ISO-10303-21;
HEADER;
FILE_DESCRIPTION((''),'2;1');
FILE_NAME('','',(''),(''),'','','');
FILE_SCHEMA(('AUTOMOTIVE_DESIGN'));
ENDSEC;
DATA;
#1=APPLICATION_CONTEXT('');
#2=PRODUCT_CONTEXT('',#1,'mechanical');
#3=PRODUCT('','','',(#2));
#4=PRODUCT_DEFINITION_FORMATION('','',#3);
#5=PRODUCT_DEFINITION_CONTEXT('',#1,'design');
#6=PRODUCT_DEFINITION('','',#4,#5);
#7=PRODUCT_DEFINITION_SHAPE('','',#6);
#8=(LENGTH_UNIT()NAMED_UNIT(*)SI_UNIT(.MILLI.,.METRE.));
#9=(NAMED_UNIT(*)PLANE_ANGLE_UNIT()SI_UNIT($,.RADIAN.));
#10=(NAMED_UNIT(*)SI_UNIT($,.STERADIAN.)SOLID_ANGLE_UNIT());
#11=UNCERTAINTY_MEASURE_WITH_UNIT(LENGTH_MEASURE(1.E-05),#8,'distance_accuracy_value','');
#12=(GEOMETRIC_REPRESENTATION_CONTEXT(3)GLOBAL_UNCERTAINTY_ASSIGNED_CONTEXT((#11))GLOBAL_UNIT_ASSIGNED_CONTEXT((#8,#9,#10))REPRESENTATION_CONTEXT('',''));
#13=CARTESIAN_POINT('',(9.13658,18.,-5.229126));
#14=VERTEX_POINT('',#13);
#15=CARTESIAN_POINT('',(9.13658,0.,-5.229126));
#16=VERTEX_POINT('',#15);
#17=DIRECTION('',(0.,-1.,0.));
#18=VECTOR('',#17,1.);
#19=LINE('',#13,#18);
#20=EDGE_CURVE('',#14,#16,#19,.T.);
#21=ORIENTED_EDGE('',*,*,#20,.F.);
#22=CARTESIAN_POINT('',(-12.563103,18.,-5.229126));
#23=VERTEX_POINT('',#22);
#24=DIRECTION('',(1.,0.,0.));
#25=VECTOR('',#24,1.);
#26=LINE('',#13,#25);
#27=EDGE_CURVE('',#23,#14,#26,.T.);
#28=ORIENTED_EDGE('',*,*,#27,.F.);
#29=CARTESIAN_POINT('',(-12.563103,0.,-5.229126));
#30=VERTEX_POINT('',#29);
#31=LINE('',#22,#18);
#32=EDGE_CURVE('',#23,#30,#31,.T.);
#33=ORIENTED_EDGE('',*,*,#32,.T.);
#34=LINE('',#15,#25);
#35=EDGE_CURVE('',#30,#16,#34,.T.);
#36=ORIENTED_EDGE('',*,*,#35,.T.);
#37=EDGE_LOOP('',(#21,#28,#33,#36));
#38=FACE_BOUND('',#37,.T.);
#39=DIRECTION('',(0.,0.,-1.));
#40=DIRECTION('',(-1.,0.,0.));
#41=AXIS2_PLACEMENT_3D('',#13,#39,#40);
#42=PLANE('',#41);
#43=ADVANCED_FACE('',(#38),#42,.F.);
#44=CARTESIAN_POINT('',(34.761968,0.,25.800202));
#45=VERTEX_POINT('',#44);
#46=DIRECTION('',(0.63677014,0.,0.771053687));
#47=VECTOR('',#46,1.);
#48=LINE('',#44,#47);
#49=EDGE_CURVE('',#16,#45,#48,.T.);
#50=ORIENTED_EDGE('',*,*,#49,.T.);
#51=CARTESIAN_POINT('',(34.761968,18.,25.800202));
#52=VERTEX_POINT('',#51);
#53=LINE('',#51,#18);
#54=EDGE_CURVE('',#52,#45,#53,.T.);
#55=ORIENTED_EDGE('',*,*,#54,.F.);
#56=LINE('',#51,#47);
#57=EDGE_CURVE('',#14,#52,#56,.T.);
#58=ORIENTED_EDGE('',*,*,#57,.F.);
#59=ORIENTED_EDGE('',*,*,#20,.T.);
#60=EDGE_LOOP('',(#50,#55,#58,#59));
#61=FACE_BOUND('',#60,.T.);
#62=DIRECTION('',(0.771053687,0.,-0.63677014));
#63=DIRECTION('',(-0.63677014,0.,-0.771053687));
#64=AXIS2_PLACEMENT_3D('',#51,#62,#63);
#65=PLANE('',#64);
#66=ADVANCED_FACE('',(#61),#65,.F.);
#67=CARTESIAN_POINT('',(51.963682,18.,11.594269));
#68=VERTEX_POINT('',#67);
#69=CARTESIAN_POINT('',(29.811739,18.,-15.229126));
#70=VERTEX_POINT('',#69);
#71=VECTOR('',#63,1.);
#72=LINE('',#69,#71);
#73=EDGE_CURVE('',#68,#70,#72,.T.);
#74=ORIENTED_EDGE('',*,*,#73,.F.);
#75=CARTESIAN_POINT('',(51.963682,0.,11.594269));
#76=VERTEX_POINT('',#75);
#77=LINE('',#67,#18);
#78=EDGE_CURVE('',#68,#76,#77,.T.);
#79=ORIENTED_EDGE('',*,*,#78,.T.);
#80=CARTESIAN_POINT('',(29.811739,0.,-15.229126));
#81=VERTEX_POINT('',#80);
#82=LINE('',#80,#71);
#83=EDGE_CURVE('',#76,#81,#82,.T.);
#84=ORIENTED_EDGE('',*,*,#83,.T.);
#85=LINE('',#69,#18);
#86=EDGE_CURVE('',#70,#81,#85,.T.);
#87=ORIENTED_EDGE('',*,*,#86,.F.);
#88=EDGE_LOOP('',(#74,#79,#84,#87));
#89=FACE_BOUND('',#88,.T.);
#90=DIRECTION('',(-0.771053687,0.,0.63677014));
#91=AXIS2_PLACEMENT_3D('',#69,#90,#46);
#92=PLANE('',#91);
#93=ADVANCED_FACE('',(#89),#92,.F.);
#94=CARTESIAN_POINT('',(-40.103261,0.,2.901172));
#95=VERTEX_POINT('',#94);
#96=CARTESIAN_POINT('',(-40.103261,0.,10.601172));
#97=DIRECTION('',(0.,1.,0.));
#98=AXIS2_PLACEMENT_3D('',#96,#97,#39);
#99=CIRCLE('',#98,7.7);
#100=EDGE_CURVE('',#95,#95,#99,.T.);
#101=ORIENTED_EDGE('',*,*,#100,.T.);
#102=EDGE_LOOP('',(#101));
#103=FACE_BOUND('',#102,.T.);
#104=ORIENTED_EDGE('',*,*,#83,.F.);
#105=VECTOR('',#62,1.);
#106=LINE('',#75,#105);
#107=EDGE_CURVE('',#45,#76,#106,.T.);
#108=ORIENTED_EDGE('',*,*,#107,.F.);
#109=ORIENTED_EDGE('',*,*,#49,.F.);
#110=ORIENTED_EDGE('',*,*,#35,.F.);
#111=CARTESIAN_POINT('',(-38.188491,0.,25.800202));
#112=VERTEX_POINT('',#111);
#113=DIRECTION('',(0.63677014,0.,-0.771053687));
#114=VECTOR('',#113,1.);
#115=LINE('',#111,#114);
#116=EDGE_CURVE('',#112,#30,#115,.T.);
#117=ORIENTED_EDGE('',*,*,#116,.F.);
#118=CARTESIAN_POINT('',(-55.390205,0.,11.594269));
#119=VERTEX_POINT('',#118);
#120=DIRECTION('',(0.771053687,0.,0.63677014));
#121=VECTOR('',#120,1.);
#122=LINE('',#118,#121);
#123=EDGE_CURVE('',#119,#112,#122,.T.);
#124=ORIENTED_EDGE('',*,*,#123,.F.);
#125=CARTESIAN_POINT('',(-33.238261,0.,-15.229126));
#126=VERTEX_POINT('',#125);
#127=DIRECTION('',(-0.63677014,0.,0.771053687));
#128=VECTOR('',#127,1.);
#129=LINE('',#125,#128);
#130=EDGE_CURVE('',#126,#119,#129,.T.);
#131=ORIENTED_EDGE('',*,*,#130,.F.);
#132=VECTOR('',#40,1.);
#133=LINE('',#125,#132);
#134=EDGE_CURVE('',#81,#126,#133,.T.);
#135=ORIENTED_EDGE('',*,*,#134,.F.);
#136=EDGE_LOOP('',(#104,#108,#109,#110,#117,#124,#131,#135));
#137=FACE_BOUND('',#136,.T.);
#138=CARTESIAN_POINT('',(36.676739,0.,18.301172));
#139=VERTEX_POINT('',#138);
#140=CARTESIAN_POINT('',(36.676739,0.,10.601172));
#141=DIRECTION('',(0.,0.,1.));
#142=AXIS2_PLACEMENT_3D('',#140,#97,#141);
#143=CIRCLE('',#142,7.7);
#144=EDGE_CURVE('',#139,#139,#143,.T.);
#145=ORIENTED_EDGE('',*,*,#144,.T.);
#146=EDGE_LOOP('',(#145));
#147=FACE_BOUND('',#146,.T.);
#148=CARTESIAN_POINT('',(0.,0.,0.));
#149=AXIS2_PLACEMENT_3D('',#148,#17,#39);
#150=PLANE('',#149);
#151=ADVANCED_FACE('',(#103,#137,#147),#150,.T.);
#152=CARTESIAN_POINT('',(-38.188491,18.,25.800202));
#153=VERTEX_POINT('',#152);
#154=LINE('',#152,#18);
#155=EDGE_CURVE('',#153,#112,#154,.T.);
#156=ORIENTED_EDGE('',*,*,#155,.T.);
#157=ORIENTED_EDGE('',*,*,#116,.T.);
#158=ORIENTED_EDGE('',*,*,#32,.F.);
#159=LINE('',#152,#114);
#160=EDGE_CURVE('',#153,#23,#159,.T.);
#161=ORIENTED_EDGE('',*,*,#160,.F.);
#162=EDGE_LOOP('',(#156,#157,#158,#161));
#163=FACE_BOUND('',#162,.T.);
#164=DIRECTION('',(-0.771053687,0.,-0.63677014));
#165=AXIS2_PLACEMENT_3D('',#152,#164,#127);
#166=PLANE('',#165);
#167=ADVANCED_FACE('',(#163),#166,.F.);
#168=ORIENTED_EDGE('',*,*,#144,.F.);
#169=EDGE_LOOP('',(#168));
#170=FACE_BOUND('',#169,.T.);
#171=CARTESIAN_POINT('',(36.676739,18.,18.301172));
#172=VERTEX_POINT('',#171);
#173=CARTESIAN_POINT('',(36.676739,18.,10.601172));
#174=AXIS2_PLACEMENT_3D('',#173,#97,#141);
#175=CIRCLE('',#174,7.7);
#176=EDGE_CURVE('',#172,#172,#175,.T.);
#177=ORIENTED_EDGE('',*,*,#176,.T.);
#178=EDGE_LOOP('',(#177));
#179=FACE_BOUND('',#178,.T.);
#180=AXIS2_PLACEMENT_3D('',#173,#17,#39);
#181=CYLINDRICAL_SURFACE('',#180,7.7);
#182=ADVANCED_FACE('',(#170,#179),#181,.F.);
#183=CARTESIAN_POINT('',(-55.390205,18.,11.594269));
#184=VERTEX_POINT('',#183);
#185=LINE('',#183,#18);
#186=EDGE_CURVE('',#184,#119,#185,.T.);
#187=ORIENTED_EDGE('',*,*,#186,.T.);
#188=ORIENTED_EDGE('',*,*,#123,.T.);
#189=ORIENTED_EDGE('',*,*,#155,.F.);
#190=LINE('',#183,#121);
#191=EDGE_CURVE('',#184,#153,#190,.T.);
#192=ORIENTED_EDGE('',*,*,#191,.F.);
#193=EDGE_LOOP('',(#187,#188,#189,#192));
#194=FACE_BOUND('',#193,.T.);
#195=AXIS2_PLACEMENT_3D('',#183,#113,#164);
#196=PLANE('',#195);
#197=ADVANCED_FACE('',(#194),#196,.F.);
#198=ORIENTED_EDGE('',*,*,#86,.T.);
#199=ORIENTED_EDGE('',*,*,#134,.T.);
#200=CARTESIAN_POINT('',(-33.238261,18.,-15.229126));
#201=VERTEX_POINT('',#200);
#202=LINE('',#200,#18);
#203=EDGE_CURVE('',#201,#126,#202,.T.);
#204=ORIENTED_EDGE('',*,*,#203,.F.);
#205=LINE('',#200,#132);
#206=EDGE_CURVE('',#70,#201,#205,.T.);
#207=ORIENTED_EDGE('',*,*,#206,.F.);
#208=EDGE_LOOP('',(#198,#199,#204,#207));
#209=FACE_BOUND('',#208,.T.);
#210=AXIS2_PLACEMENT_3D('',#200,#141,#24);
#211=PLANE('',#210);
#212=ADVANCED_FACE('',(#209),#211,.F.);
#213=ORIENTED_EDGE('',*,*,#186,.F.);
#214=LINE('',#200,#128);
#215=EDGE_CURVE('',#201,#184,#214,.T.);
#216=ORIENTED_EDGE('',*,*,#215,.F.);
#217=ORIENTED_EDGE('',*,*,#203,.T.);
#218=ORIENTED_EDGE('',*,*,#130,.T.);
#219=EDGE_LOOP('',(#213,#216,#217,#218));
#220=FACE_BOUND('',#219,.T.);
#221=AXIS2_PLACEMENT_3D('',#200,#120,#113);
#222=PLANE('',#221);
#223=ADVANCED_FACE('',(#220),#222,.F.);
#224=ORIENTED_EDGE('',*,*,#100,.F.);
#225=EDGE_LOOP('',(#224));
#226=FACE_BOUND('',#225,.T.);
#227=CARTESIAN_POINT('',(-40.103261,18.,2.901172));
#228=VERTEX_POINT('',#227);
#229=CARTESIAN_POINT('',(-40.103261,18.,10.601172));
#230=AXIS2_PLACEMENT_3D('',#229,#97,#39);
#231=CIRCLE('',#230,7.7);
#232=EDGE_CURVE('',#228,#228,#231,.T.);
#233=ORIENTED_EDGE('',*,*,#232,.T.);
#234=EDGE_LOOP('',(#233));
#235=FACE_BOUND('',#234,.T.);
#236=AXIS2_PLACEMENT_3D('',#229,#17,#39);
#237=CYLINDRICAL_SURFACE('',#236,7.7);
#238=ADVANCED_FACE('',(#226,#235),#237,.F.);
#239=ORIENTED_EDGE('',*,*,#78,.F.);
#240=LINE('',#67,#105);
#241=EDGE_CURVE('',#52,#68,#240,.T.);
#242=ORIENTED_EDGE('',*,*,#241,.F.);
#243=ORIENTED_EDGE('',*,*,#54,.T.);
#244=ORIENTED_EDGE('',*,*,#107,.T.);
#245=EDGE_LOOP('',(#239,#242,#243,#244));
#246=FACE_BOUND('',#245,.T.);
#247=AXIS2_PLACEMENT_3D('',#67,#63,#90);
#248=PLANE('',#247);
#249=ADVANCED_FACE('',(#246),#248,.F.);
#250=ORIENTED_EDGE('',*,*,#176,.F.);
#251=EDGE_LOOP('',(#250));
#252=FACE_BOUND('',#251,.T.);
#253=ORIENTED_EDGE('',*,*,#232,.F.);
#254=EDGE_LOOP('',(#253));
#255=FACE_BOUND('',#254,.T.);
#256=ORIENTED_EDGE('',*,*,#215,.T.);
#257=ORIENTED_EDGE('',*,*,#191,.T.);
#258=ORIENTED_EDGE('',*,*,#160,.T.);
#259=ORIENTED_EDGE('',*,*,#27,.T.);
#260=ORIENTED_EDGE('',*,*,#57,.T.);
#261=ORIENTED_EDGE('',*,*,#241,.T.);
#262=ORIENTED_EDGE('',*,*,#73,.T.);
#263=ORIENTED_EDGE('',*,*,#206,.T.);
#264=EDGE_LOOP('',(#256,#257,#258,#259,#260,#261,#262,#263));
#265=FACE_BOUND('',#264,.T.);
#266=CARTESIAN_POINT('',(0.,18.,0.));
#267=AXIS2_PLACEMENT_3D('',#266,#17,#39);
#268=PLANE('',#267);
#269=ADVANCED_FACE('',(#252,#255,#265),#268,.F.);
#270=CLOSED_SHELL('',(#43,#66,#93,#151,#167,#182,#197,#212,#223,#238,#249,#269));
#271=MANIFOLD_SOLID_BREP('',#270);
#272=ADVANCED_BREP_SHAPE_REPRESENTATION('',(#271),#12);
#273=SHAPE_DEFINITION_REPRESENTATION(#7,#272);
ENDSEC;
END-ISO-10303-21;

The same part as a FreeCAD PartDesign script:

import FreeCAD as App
import Part
import Sketcher

V = App.Vector


def add_polygon(sketch, points):
    """Adds a closed chain of lines whose ends are joined by coincident constraints."""
    first, n = sketch.GeometryCount, len(points)
    for a, b in zip(points, points[1:] + points[:1]):
        sketch.addGeometry(Part.LineSegment(App.Vector(*a, 0), App.Vector(*b, 0)), False)
    for i in range(n):
        sketch.addConstraint(Sketcher.Constraint("Coincident", first + i, 2, first + (i + 1) % n, 1))

doc = App.newDocument("Part")
body = doc.addObject("PartDesign::Body", "Body")

# Sketch on XZ plane
sketch1 = body.newObject("Sketcher::SketchObject", "Sketch")
sketch1.AttachmentSupport = (doc.getObject("XZ_Plane"), [""])
sketch1.MapMode = "FlatFace"
add_polygon(sketch1, [(30, -15), (-33, -15), (-55, 12), (-38, 26), (-13, -5), (9, -5), (35, 26), (52, 12)])  # lines 0-7
sketch1.addGeometry(Part.Circle(V(37, 11, 0), V(0, 0, 1), 8), False)  # 8
sketch1.addGeometry(Part.Circle(V(-40, 11, 0), V(0, 0, 1), 8), False)  # 9
sketch1.addConstraint([
    Sketcher.Constraint("Horizontal", 0),
    Sketcher.Constraint("Horizontal", 4),
    Sketcher.Constraint("Equal", 8, 9),
    Sketcher.Constraint("Perpendicular", 1, 2),
    Sketcher.Constraint("Perpendicular", 2, 3),
    Sketcher.Constraint("Perpendicular", 5, 6),
    Sketcher.Constraint("Perpendicular", 6, 7),
    Sketcher.Constraint("Horizontal", 8, 3, 9, 3),
    Sketcher.Constraint("Horizontal", 2, 2, 5, 2),
    Sketcher.Constraint("Horizontal", 1, 2, 6, 2),
    Sketcher.Constraint("Equal", 3, 5),
    Sketcher.Constraint("Diameter", 8, 15.4),
    Sketcher.Constraint("DistanceY", 0, 2, 3, 2, 10.0),
    Sketcher.Constraint("DistanceX", 0, 2, 0, 1, 63.05),
    Sketcher.Constraint("DistanceX", 9, 3, 8, 3, 76.78),
    Sketcher.Constraint("DistanceX", 9, 3, 0, 2, 6.865),
    Sketcher.Constraint("DistanceY", 0, 2, 9, 3, 25.830299),
    Sketcher.Constraint("DistanceX", 1, 2, 3, 2, 42.827101),
    Sketcher.Constraint("Distance", 2, 22.309358),
    Sketcher.Constraint("Distance", 3, 40.242761),
    Sketcher.Constraint("DistanceX", -1, 1, 8, 3, 36.676739),
    Sketcher.Constraint("DistanceY", -1, 1, 1, 2, 11.594269),
])
pad1 = body.newObject("PartDesign::Pad", "Pad")
pad1.Profile = sketch1
pad1.Length = 18
pad1.Reversed = True

doc.recompute()
